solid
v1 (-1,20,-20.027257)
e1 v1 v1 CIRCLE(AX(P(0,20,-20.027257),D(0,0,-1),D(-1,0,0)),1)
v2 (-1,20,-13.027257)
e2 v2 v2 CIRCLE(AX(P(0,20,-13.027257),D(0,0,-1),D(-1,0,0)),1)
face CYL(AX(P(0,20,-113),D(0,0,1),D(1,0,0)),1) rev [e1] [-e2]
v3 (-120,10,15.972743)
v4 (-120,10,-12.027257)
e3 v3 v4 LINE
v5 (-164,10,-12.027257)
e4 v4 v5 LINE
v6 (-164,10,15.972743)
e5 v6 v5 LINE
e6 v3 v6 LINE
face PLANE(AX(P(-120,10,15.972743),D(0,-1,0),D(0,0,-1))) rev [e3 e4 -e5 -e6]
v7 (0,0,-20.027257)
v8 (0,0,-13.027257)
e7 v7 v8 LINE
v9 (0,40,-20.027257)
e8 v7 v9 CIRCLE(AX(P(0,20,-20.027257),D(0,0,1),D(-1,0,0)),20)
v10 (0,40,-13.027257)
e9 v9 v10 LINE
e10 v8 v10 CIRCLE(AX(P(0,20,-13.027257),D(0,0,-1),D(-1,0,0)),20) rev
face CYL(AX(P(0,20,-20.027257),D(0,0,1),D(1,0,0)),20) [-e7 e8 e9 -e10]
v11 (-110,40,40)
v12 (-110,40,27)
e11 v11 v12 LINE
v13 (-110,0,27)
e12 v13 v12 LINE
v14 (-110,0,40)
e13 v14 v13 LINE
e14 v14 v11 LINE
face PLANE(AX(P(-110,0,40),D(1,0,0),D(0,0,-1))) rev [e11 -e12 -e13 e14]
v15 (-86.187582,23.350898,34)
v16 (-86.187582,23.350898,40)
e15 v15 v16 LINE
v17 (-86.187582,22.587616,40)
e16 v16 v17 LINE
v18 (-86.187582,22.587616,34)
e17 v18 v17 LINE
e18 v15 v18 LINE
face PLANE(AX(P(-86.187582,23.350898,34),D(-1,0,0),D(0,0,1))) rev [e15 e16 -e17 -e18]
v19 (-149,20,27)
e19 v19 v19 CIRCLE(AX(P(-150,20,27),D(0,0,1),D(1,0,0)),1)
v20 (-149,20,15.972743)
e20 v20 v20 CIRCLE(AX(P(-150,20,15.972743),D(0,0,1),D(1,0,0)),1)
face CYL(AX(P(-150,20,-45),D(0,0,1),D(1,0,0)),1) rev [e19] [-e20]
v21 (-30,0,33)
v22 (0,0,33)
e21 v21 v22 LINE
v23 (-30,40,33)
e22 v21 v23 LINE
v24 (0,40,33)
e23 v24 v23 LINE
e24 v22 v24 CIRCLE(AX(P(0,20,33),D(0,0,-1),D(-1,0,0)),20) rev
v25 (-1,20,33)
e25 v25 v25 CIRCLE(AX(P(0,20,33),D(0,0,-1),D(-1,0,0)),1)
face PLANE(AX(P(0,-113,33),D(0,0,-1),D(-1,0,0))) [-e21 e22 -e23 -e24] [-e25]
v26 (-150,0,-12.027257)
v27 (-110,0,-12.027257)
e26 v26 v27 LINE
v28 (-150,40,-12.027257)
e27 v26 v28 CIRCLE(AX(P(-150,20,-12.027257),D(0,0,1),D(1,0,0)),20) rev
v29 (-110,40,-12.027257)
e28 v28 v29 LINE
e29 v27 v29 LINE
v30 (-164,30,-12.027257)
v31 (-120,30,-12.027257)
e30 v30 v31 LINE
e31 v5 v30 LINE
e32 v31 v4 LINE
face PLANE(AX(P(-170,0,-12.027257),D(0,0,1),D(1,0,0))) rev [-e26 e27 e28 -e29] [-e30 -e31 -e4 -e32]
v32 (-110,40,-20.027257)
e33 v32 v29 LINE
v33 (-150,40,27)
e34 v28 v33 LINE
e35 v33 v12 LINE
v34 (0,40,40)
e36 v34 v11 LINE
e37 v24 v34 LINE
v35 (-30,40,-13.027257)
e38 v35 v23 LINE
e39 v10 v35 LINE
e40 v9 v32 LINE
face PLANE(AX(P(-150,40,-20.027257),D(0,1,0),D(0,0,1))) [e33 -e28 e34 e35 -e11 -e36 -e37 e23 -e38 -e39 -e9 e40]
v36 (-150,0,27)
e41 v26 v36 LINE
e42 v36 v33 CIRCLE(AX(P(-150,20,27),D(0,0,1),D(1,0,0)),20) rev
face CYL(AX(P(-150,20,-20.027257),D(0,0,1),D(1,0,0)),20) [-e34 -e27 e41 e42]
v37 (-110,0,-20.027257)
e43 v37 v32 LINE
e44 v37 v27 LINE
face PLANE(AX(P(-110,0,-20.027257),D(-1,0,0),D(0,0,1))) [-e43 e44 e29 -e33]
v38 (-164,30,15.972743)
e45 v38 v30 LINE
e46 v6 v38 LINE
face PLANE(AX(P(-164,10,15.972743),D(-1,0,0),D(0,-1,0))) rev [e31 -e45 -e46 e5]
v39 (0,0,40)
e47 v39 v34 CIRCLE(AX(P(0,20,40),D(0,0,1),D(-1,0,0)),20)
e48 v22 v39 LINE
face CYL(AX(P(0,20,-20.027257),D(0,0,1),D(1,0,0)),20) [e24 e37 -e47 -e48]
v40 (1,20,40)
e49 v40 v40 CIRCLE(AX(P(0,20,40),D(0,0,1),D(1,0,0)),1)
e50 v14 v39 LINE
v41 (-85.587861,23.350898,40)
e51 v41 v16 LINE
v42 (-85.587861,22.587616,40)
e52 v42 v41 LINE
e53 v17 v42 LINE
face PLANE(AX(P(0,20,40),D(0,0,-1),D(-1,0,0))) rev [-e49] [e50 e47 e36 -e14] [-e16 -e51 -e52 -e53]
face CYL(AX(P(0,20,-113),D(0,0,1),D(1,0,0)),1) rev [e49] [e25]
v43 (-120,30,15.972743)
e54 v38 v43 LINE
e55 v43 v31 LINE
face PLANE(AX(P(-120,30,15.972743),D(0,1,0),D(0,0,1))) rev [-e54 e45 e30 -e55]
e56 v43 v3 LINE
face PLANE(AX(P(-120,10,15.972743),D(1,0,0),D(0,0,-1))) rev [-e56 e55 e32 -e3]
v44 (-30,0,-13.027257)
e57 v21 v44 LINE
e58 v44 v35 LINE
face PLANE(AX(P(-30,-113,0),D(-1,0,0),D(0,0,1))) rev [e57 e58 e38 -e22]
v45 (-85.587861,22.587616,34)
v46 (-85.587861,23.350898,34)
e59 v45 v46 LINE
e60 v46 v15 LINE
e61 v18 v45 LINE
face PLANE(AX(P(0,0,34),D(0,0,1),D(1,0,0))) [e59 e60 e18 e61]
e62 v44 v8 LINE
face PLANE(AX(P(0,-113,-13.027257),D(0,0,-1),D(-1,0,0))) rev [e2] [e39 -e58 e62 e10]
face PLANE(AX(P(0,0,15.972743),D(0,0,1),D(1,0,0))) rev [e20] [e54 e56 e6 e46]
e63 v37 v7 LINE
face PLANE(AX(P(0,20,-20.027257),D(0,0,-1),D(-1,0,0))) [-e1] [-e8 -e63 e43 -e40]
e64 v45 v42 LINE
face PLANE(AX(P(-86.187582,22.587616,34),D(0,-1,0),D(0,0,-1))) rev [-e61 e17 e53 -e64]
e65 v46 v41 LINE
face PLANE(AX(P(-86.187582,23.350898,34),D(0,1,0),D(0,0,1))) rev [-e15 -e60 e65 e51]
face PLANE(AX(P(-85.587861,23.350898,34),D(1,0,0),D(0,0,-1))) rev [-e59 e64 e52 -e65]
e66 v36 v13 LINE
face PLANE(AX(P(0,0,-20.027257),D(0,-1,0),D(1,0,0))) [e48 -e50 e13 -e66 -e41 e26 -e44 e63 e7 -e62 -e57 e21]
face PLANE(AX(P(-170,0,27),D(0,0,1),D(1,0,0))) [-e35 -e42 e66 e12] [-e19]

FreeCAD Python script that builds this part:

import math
import FreeCAD as App
import Part
import Sketcher

V = App.Vector

doc = App.newDocument("Part")
body = doc.addObject("PartDesign::Body", "Body")

# Sketch on XY plane
sketch1 = body.newObject("Sketcher::SketchObject", "Sketch")
sketch1.AttachmentSupport = (doc.getObject("XY_Plane"), [""])
sketch1.MapMode = "FlatFace"
sketch1.addGeometry([
    Part.LineSegment(V(-150, 0, 0), V(0, 0, 0)),
    Part.ArcOfCircle(Part.Circle(V(0, 20, 0), V(0, 0, 1), 20), math.radians(-90), math.radians(90)),
    Part.LineSegment(V(0, 40, 0), V(-150, 40, 0)),
    Part.ArcOfCircle(Part.Circle(V(-150, 20, 0), V(0, 0, 1), 20), math.radians(90), math.radians(270)),
], False)
sketch1.addConstraint([
    Sketcher.Constraint("Tangent", 0, 2, 1, 1),
    Sketcher.Constraint("Tangent", 1, 2, 2, 1),
    Sketcher.Constraint("Tangent", 2, 2, 3, 1),
    Sketcher.Constraint("Tangent", 3, 2, 0, 1),
    Sketcher.Constraint("Horizontal", 0),
    Sketcher.Constraint("Horizontal", 2),
    Sketcher.Constraint("Coincident", 0, 2, -1, 1),
    Sketcher.Constraint("Radius", 1, 20.0),
    Sketcher.Constraint("DistanceX", 0, 1, 0, 2, 150.0),
])
pad1 = body.newObject("PartDesign::Pad", "Pad")
pad1.Profile = sketch1
pad1.Type = "TwoLengths"
pad1.Length = 40
pad1.Length2 = 20.027257

# Sketch on XZ plane
sketch2 = body.newObject("Sketcher::SketchObject", "Sketch001")
sketch2.AttachmentSupport = (doc.getObject("XZ_Plane"), [""])
sketch2.MapMode = "FlatFace"
sketch2.AttachmentOffset = App.Placement(V(0, 0, -40), App.Rotation())
sketch2.addGeometry([
    Part.LineSegment(V(-170, -20, 0), V(-170, -12, 0)),
    Part.LineSegment(V(-170, -12, 0), V(-110, -12, 0)),
    Part.LineSegment(V(-110, -12, 0), V(-110, -20, 0)),
    Part.LineSegment(V(-110, -20, 0), V(-170, -20, 0)),
], False)
sketch2.addConstraint([
    Sketcher.Constraint("Coincident", 0, 2, 1, 1),
    Sketcher.Constraint("Coincident", 1, 2, 2, 1),
    Sketcher.Constraint("Coincident", 2, 2, 3, 1),
    Sketcher.Constraint("Coincident", 3, 2, 0, 1),
    Sketcher.Constraint("Vertical", 0),
    Sketcher.Constraint("Horizontal", 1),
    Sketcher.Constraint("Vertical", 2),
    Sketcher.Constraint("Horizontal", 3),
    Sketcher.Constraint("DistanceX", 1, 1, 1, 2, 60.0),
    Sketcher.Constraint("DistanceY", 0, 1, 0, 2, 8.0),
    Sketcher.Constraint("DistanceX", 0, 2, -1, 1, 170.0),
    Sketcher.Constraint("DistanceY", 0, 2, -1, 1, 12.027257),
])
pocket1 = body.newObject("PartDesign::Pocket", "Pocket")
pocket1.Profile = sketch2
pocket1.Length = 40
pocket1.Reversed = True

# Sketch on XZ plane
sketch3 = body.newObject("Sketcher::SketchObject", "Sketch002")
sketch3.AttachmentSupport = (doc.getObject("XZ_Plane"), [""])
sketch3.MapMode = "FlatFace"
sketch3.AttachmentOffset = App.Placement(V(0, 0, -40), App.Rotation())
sketch3.addGeometry([
    Part.LineSegment(V(-170, 27, 0), V(-170, 40, 0)),
    Part.LineSegment(V(-170, 40, 0), V(-110, 40, 0)),
    Part.LineSegment(V(-110, 40, 0), V(-110, 27, 0)),
    Part.LineSegment(V(-110, 27, 0), V(-170, 27, 0)),
], False)
sketch3.addConstraint([
    Sketcher.Constraint("Coincident", 0, 2, 1, 1),
    Sketcher.Constraint("Coincident", 1, 2, 2, 1),
    Sketcher.Constraint("Coincident", 2, 2, 3, 1),
    Sketcher.Constraint("Coincident", 3, 2, 0, 1),
    Sketcher.Constraint("Vertical", 0),
    Sketcher.Constraint("Horizontal", 1),
    Sketcher.Constraint("Vertical", 2),
    Sketcher.Constraint("Horizontal", 3),
    Sketcher.Constraint("DistanceX", 1, 1, 1, 2, 60.0),
    Sketcher.Constraint("DistanceY", 0, 1, 0, 2, 13.0),
    Sketcher.Constraint("DistanceX", 0, 2, -1, 1, 170.0),
    Sketcher.Constraint("DistanceY", -1, 1, 0, 2, 40.0),
])
pocket2 = body.newObject("PartDesign::Pocket", "Pocket001")
pocket2.Profile = sketch3
pocket2.Length = 40
pocket2.Reversed = True

# Sketch on XY plane
sketch4 = body.newObject("Sketcher::SketchObject", "Sketch003")
sketch4.AttachmentSupport = (doc.getObject("XY_Plane"), [""])
sketch4.MapMode = "FlatFace"
sketch4.AttachmentOffset = App.Placement(V(0, 0, 40), App.Rotation())
sketch4.addGeometry([
    Part.LineSegment(V(-86.2, 23.4, 0), V(-86.2, 22.6, 0)),
    Part.LineSegment(V(-86.2, 22.6, 0), V(-85.6, 22.6, 0)),
    Part.LineSegment(V(-85.6, 22.6, 0), V(-85.6, 23.4, 0)),
    Part.LineSegment(V(-85.6, 23.4, 0), V(-86.2, 23.4, 0)),
], False)
sketch4.addConstraint([
    Sketcher.Constraint("Coincident", 0, 2, 1, 1),
    Sketcher.Constraint("Coincident", 1, 2, 2, 1),
    Sketcher.Constraint("Coincident", 2, 2, 3, 1),
    Sketcher.Constraint("Coincident", 3, 2, 0, 1),
    Sketcher.Constraint("Vertical", 0),
    Sketcher.Constraint("Horizontal", 1),
    Sketcher.Constraint("Vertical", 2),
    Sketcher.Constraint("Horizontal", 3),
    Sketcher.Constraint("DistanceX", 1, 1, 1, 2, 0.599721),
    Sketcher.Constraint("DistanceY", 0, 2, 0, 1, 0.763282),
    Sketcher.Constraint("DistanceX", 0, 2, -1, 1, 86.187582),
    Sketcher.Constraint("DistanceY", -1, 1, 0, 2, 22.587616),
])
pocket3 = body.newObject("PartDesign::Pocket", "Pocket002")
pocket3.Profile = sketch4
pocket3.Length = 6

# Sketch on XY plane
sketch5 = body.newObject("Sketcher::SketchObject", "Sketch004")
sketch5.AttachmentSupport = (doc.getObject("XY_Plane"), [""])
sketch5.MapMode = "FlatFace"
sketch5.AttachmentOffset = App.Placement(V(0, 0, -12.027257), App.Rotation())
sketch5.addGeometry([
    Part.LineSegment(V(-120, 30, 0), V(-120, 10, 0)),
    Part.LineSegment(V(-120, 10, 0), V(-164, 10, 0)),
    Part.LineSegment(V(-164, 10, 0), V(-164, 30, 0)),
    Part.LineSegment(V(-164, 30, 0), V(-120, 30, 0)),
], False)
sketch5.addConstraint([
    Sketcher.Constraint("Coincident", 0, 2, 1, 1),
    Sketcher.Constraint("Coincident", 1, 2, 2, 1),
    Sketcher.Constraint("Coincident", 2, 2, 3, 1),
    Sketcher.Constraint("Coincident", 3, 2, 0, 1),
    Sketcher.Constraint("Vertical", 0),
    Sketcher.Constraint("Horizontal", 1),
    Sketcher.Constraint("Vertical", 2),
    Sketcher.Constraint("Horizontal", 3),
    Sketcher.Constraint("DistanceX", 1, 2, 1, 1, 44.0),
    Sketcher.Constraint("DistanceY", 0, 2, 0, 1, 20.0),
    Sketcher.Constraint("DistanceX", 0, 2, -1, 1, 120.0),
    Sketcher.Constraint("DistanceY", -1, 1, 0, 2, 10.0),
])
pocket4 = body.newObject("PartDesign::Pocket", "Pocket003")
pocket4.Profile = sketch5
pocket4.Length = 28
pocket4.Reversed = True

# Sketch on XZ plane
sketch6 = body.newObject("Sketcher::SketchObject", "Sketch005")
sketch6.AttachmentSupport = (doc.getObject("XZ_Plane"), [""])
sketch6.MapMode = "FlatFace"
sketch6.AttachmentOffset = App.Placement(V(0, 0, -40), App.Rotation())
sketch6.addGeometry([
    Part.LineSegment(V(-30, -13, 0), V(-30, 33, 0)),
    Part.LineSegment(V(-30, 33, 0), V(20, 33, 0)),
    Part.LineSegment(V(20, 33, 0), V(20, -13, 0)),
    Part.LineSegment(V(20, -13, 0), V(-30, -13, 0)),
], False)
sketch6.addConstraint([
    Sketcher.Constraint("Coincident", 0, 2, 1, 1),
    Sketcher.Constraint("Coincident", 1, 2, 2, 1),
    Sketcher.Constraint("Coincident", 2, 2, 3, 1),
    Sketcher.Constraint("Coincident", 3, 2, 0, 1),
    Sketcher.Constraint("Vertical", 0),
    Sketcher.Constraint("Horizontal", 1),
    Sketcher.Constraint("Vertical", 2),
    Sketcher.Constraint("Horizontal", 3),
    Sketcher.Constraint("DistanceX", 1, 1, 1, 2, 50.0),
    Sketcher.Constraint("DistanceX", 0, 2, -1, 1, 30.0),
    Sketcher.Constraint("DistanceY", -1, 1, 0, 2, 33.0),
    Sketcher.Constraint("DistanceY", 0, 1, 0, 2, 46.027257),
])
pocket5 = body.newObject("PartDesign::Pocket", "Pocket004")
pocket5.Profile = sketch6
pocket5.Length = 153
pocket5.Reversed = True

# Sketch on XY plane
sketch7 = body.newObject("Sketcher::SketchObject", "Sketch006")
sketch7.AttachmentSupport = (doc.getObject("XY_Plane"), [""])
sketch7.MapMode = "FlatFace"
sketch7.AttachmentOffset = App.Placement(V(0, 0, 40), App.Rotation())
sketch7.addGeometry(Part.Circle(V(0, 20, 0), V(0, 0, 1), 1), False)
sketch7.addConstraint([
    Sketcher.Constraint("PointOnObject", 0, 3, -2),
    Sketcher.Constraint("Diameter", 0, 2.0),
    Sketcher.Constraint("DistanceY", -1, 1, 0, 3, 20.0),
])
pocket6 = body.newObject("PartDesign::Pocket", "Pocket005")
pocket6.Profile = sketch7
pocket6.Length = 153

# Sketch on XY plane
sketch8 = body.newObject("Sketcher::SketchObject", "Sketch007")
sketch8.AttachmentSupport = (doc.getObject("XY_Plane"), [""])
sketch8.MapMode = "FlatFace"
sketch8.AttachmentOffset = App.Placement(V(0, 0, 27), App.Rotation())
sketch8.addGeometry(Part.Circle(V(-150, 20, 0), V(0, 0, 1), 1), False)
sketch8.addConstraint([
    Sketcher.Constraint("Diameter", 0, 2.0),
    Sketcher.Constraint("DistanceX", 0, 3, -1, 1, 150.0),
    Sketcher.Constraint("DistanceY", -1, 1, 0, 3, 20.0),
])
pocket7 = body.newObject("PartDesign::Pocket", "Pocket006")
pocket7.Profile = sketch8
pocket7.Length = 72

doc.recompute()
